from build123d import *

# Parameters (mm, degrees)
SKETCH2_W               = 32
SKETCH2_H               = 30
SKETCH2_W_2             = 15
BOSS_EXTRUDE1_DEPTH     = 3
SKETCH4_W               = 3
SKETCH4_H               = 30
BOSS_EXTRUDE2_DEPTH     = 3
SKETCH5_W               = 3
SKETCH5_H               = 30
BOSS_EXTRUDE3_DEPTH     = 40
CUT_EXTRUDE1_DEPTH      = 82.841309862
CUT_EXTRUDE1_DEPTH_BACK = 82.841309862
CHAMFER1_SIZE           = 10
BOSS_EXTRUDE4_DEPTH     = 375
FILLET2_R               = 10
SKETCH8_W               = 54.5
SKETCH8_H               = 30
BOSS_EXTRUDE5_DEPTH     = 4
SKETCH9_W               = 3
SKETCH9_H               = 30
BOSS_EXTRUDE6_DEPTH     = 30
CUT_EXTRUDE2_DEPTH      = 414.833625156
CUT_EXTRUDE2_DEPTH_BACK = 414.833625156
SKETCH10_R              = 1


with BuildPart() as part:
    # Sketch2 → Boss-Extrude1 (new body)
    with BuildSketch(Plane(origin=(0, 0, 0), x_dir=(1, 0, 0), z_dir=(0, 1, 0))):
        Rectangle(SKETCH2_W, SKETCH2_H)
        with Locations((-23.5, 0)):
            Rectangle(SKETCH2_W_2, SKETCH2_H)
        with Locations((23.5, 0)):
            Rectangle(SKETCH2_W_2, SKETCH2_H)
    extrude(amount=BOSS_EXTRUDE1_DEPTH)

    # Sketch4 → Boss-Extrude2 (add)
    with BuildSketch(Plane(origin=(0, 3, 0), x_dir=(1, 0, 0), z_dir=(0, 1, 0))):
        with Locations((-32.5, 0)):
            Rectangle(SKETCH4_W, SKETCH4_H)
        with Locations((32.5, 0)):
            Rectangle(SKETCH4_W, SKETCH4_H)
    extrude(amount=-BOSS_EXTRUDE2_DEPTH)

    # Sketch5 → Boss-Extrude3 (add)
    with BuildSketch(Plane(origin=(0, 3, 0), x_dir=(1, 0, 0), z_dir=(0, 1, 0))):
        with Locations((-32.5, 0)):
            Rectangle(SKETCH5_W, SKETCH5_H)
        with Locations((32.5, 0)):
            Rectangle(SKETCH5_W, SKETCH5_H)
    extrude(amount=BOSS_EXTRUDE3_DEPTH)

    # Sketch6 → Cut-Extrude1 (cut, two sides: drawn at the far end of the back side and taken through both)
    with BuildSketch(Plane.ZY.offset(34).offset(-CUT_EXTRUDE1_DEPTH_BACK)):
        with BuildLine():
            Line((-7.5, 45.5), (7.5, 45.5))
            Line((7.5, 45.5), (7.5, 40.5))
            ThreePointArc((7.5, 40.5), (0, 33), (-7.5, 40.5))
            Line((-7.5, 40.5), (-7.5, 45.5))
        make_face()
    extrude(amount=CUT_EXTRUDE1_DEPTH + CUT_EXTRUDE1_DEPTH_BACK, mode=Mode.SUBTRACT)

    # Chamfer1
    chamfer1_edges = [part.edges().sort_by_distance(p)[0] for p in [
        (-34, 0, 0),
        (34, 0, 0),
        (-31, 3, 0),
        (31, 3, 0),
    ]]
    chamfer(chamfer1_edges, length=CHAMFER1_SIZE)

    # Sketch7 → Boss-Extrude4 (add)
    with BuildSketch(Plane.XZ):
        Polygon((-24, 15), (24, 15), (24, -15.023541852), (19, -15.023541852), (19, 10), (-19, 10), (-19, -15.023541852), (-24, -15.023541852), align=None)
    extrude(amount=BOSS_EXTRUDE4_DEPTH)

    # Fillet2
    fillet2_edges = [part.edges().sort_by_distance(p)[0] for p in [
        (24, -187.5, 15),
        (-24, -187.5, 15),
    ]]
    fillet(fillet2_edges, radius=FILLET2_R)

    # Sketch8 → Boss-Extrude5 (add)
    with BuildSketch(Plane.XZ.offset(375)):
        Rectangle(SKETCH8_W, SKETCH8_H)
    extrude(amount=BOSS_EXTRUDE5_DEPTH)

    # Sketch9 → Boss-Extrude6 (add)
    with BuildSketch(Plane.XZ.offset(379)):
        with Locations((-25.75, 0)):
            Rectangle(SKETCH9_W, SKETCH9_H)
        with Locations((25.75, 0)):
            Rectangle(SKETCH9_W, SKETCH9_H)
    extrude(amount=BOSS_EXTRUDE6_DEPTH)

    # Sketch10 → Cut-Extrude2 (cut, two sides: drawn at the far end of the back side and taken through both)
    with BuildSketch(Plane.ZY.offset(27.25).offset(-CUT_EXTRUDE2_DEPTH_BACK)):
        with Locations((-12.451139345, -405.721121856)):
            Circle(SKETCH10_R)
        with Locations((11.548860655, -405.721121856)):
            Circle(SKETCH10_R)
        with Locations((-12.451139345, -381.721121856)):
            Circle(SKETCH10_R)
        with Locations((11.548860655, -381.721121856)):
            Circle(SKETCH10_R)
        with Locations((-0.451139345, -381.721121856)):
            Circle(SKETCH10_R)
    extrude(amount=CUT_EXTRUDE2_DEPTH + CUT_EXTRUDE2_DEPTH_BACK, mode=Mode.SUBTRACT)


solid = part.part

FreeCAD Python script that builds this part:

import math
import FreeCAD as App
import Part
import Sketcher
from FreeCAD import Vector


def edges_at(feature, points):
    """Names of the edges that pass closest to the given points."""
    edges = feature.Shape.Edges
    near = lambda p: min(range(len(edges)), key=lambda i: edges[i].distToShape(Part.Vertex(*p))[0])
    return sorted({f"Edge{near(p) + 1}" for p in points})

doc = App.newDocument("Part")
body = doc.addObject("PartDesign::Body", "Body")

# Sketch on XZ plane
sketch1 = body.newObject("Sketcher::SketchObject", "Sketch")
sketch1.AttachmentSupport = (doc.getObject("XZ_Plane"), [""])
sketch1.MapMode = "FlatFace"
sketch1.addGeometry([
    Part.LineSegment(Vector(-31, -15, 0), Vector(-31, 15, 0)),
    Part.LineSegment(Vector(-31, 15, 0), Vector(31, 15, 0)),
    Part.LineSegment(Vector(31, 15, 0), Vector(31, -15, 0)),
    Part.LineSegment(Vector(31, -15, 0), Vector(-31, -15, 0)),
], False)
sketch1.addConstraint([
    Sketcher.Constraint("Coincident", 0, 2, 1, 1),
    Sketcher.Constraint("Coincident", 1, 2, 2, 1),
    Sketcher.Constraint("Coincident", 2, 2, 3, 1),
    Sketcher.Constraint("Coincident", 3, 2, 0, 1),
    Sketcher.Constraint("Vertical", 0),
    Sketcher.Constraint("Horizontal", 1),
    Sketcher.Constraint("Vertical", 2),
    Sketcher.Constraint("Horizontal", 3),
    Sketcher.Constraint("Symmetric", 0, 2, 2, 2, -1, 1),
    Sketcher.Constraint("DistanceX", 1, 1, 1, 2, 62.0),
    Sketcher.Constraint("DistanceY", 0, 1, 0, 2, 30.0),
])
pad1 = body.newObject("PartDesign::Pad", "Pad")
pad1.Profile = sketch1
pad1.Length = 3
pad1.Reversed = True

# Sketch on XZ plane
sketch2 = body.newObject("Sketcher::SketchObject", "Sketch001")
sketch2.AttachmentSupport = (doc.getObject("XZ_Plane"), [""])
sketch2.MapMode = "FlatFace"
sketch2.AttachmentOffset = App.Placement(Vector(0, 0, -3), App.Rotation())
sketch2.addGeometry([
    Part.LineSegment(Vector(-34, -15, 0), Vector(-34, 15, 0)),  # 0
    Part.LineSegment(Vector(-34, 15, 0), Vector(-31, 15, 0)),  # 1
    Part.LineSegment(Vector(-31, 15, 0), Vector(-31, -15, 0)),  # 2
    Part.LineSegment(Vector(-31, -15, 0), Vector(-34, -15, 0)),  # 3
    Part.LineSegment(Vector(31, -15, 0), Vector(31, 15, 0)),  # 4
    Part.LineSegment(Vector(31, 15, 0), Vector(34, 15, 0)),  # 5
    Part.LineSegment(Vector(34, 15, 0), Vector(34, -15, 0)),  # 6
    Part.LineSegment(Vector(34, -15, 0), Vector(31, -15, 0)),  # 7
], False)
sketch2.addConstraint([
    Sketcher.Constraint("Coincident", 0, 2, 1, 1),
    Sketcher.Constraint("Coincident", 1, 2, 2, 1),
    Sketcher.Constraint("Coincident", 2, 2, 3, 1),
    Sketcher.Constraint("Coincident", 3, 2, 0, 1),
    Sketcher.Constraint("Coincident", 4, 2, 5, 1),
    Sketcher.Constraint("Coincident", 5, 2, 6, 1),
    Sketcher.Constraint("Coincident", 6, 2, 7, 1),
    Sketcher.Constraint("Coincident", 7, 2, 4, 1),
    Sketcher.Constraint("Vertical", 0),
    Sketcher.Constraint("Horizontal", 1),
    Sketcher.Constraint("Vertical", 2),
    Sketcher.Constraint("Horizontal", 3),
    Sketcher.Constraint("Vertical", 4),
    Sketcher.Constraint("Horizontal", 5),
    Sketcher.Constraint("Vertical", 6),
    Sketcher.Constraint("Horizontal", 7),
    Sketcher.Constraint("Symmetric", 2, 2, 4, 2, -1, 1),
    Sketcher.Constraint("Symmetric", 0, 2, 6, 2, -1, 1),
    Sketcher.Constraint("Horizontal", 1, 2, 4, 2),
    Sketcher.Constraint("DistanceX", 1, 1, 1, 2, 3.0),
    Sketcher.Constraint("DistanceY", 0, 1, 0, 2, 30.0),
    Sketcher.Constraint("DistanceX", 0, 2, -1, 1, 34.0),
])
pad2 = body.newObject("PartDesign::Pad", "Pad001")
pad2.Profile = sketch2
pad2.Length = 3

# Sketch on XZ plane
sketch3 = body.newObject("Sketcher::SketchObject", "Sketch002")
sketch3.AttachmentSupport = (doc.getObject("XZ_Plane"), [""])
sketch3.MapMode = "FlatFace"
sketch3.AttachmentOffset = App.Placement(Vector(0, 0, -3), App.Rotation())
sketch3.addGeometry([
    Part.LineSegment(Vector(-34, -15, 0), Vector(-34, 15, 0)),  # 0
    Part.LineSegment(Vector(-34, 15, 0), Vector(-31, 15, 0)),  # 1
    Part.LineSegment(Vector(-31, 15, 0), Vector(-31, -15, 0)),  # 2
    Part.LineSegment(Vector(-31, -15, 0), Vector(-34, -15, 0)),  # 3
    Part.LineSegment(Vector(31, -15, 0), Vector(31, 15, 0)),  # 4
    Part.LineSegment(Vector(31, 15, 0), Vector(34, 15, 0)),  # 5
    Part.LineSegment(Vector(34, 15, 0), Vector(34, -15, 0)),  # 6
    Part.LineSegment(Vector(34, -15, 0), Vector(31, -15, 0)),  # 7
], False)
sketch3.addConstraint([
    Sketcher.Constraint("Coincident", 0, 2, 1, 1),
    Sketcher.Constraint("Coincident", 1, 2, 2, 1),
    Sketcher.Constraint("Coincident", 2, 2, 3, 1),
    Sketcher.Constraint("Coincident", 3, 2, 0, 1),
    Sketcher.Constraint("Coincident", 4, 2, 5, 1),
    Sketcher.Constraint("Coincident", 5, 2, 6, 1),
    Sketcher.Constraint("Coincident", 6, 2, 7, 1),
    Sketcher.Constraint("Coincident", 7, 2, 4, 1),
    Sketcher.Constraint("Vertical", 0),
    Sketcher.Constraint("Horizontal", 1),
    Sketcher.Constraint("Vertical", 2),
    Sketcher.Constraint("Horizontal", 3),
    Sketcher.Constraint("Vertical", 4),
    Sketcher.Constraint("Horizontal", 5),
    Sketcher.Constraint("Vertical", 6),
    Sketcher.Constraint("Horizontal", 7),
    Sketcher.Constraint("Symmetric", 2, 2, 4, 2, -1, 1),
    Sketcher.Constraint("Symmetric", 0, 2, 6, 2, -1, 1),
    Sketcher.Constraint("Horizontal", 1, 2, 4, 2),
    Sketcher.Constraint("DistanceX", 1, 1, 1, 2, 3.0),
    Sketcher.Constraint("DistanceY", 0, 1, 0, 2, 30.0),
    Sketcher.Constraint("DistanceX", 0, 2, -1, 1, 34.0),
])
pad3 = body.newObject("PartDesign::Pad", "Pad002")
pad3.Profile = sketch3
pad3.Length = 40
pad3.Reversed = True

# Sketch on YZ plane
sketch4 = body.newObject("Sketcher::SketchObject", "Sketch003")
sketch4.AttachmentSupport = (doc.getObject("YZ_Plane"), [""])
sketch4.MapMode = "FlatFace"
sketch4.AttachmentOffset = App.Placement(Vector(0, 0, -34), App.Rotation())
sketch4.addGeometry([
    Part.LineSegment(Vector(45.5, 7.5, 0), Vector(45.5, -7.5, 0)),
    Part.LineSegment(Vector(45.5, -7.5, 0), Vector(40.5, -7.5, 0)),
    Part.ArcOfCircle(Part.Circle(Vector(40.5, 0, 0), Vector(0, 0, 1), 7.5), math.radians(90), math.radians(270)),
    Part.LineSegment(Vector(40.5, 7.5, 0), Vector(45.5, 7.5, 0)),
], False)
sketch4.addConstraint([
    Sketcher.Constraint("Coincident", 0, 2, 1, 1),
    Sketcher.Constraint("Tangent", 1, 2, 2, 2),
    Sketcher.Constraint("Tangent", 2, 1, 3, 1),
    Sketcher.Constraint("Coincident", 3, 2, 0, 1),
    Sketcher.Constraint("Vertical", 0),
    Sketcher.Constraint("Horizontal", 1),
    Sketcher.Constraint("Horizontal", 3),
    Sketcher.Constraint("PointOnObject", 2, 3, -1),
    Sketcher.Constraint("Radius", 2, 7.5),
    Sketcher.Constraint("DistanceX", 1, 2, 1, 1, 5.0),
    Sketcher.Constraint("DistanceX", -1, 1, 2, 3, 40.5),
])
pocket1 = body.newObject("PartDesign::Pocket", "Pocket")
pocket1.Profile = sketch4
pocket1.Type = "ThroughAll"
pocket1.Midplane = True
doc.recompute()

chamfer = body.newObject("PartDesign::Chamfer", "Chamfer")
chamfer.Base = (pocket1, edges_at(pocket1, [
    (-34, 0, 0),
    (34, 0, 0),
    (-31, 3, 0),
    (31, 3, 0),
]))
chamfer.Size = 10

# Sketch on XZ plane
sketch5 = body.newObject("Sketcher::SketchObject", "Sketch004")
sketch5.AttachmentSupport = (doc.getObject("XZ_Plane"), [""])
sketch5.MapMode = "FlatFace"
sketch5.addGeometry([
    Part.LineSegment(Vector(24, 15, 0), Vector(-24, 15, 0)),  # 0
    Part.LineSegment(Vector(-24, 15, 0), Vector(-24, -15.023542, 0)),  # 1
    Part.LineSegment(Vector(-24, -15.023542, 0), Vector(-19, -15.023542, 0)),  # 2
    Part.LineSegment(Vector(-19, -15.023542, 0), Vector(-19, 10, 0)),  # 3
    Part.LineSegment(Vector(-19, 10, 0), Vector(19, 10, 0)),  # 4
    Part.LineSegment(Vector(19, 10, 0), Vector(19, -15.023542, 0)),  # 5
    Part.LineSegment(Vector(19, -15.023542, 0), Vector(24, -15.023542, 0)),  # 6
    Part.LineSegment(Vector(24, -15.023542, 0), Vector(24, 15, 0)),  # 7
], False)
sketch5.addConstraint([
    Sketcher.Constraint("Coincident", 0, 2, 1, 1),
    Sketcher.Constraint("Coincident", 1, 2, 2, 1),
    Sketcher.Constraint("Coincident", 2, 2, 3, 1),
    Sketcher.Constraint("Coincident", 3, 2, 4, 1),
    Sketcher.Constraint("Coincident", 4, 2, 5, 1),
    Sketcher.Constraint("Coincident", 5, 2, 6, 1),
    Sketcher.Constraint("Coincident", 6, 2, 7, 1),
    Sketcher.Constraint("Coincident", 7, 2, 0, 1),
    Sketcher.Constraint("Horizontal", 0),
    Sketcher.Constraint("Vertical", 1),
    Sketcher.Constraint("Horizontal", 2),
    Sketcher.Constraint("Vertical", 3),
    Sketcher.Constraint("Horizontal", 4),
    Sketcher.Constraint("Vertical", 5),
    Sketcher.Constraint("Horizontal", 6),
    Sketcher.Constraint("Vertical", 7),
    Sketcher.Constraint("Symmetric", 2, 2, 5, 2, -2),
    Sketcher.Constraint("Equal", 2, 6),
    Sketcher.Constraint("DistanceX", 0, 2, 0, 1, 48.0),
    Sketcher.Constraint("DistanceX", 2, 1, 2, 2, 5.0),
    Sketcher.Constraint("DistanceY", -1, 1, 0, 2, 15.0),
    Sketcher.Constraint("DistanceY", -1, 1, 3, 2, 10.0),
    Sketcher.Constraint("DistanceY", 1, 2, 1, 1, 30.023542),
])
pad4 = body.newObject("PartDesign::Pad", "Pad003")
pad4.Profile = sketch5
pad4.Length = 375
doc.recompute()

fillet = body.newObject("PartDesign::Fillet", "Fillet")
fillet.Base = (pad4, edges_at(pad4, [(24, -187.5, 15), (-24, -187.5, 15)]))
fillet.Radius = 10

# Sketch on XZ plane
sketch6 = body.newObject("Sketcher::SketchObject", "Sketch005")
sketch6.AttachmentSupport = (doc.getObject("XZ_Plane"), [""])
sketch6.MapMode = "FlatFace"
sketch6.AttachmentOffset = App.Placement(Vector(0, 0, 375), App.Rotation())
sketch6.addGeometry([
    Part.LineSegment(Vector(-27.25, 15, 0), Vector(-27.25, -15, 0)),
    Part.LineSegment(Vector(-27.25, -15, 0), Vector(27.25, -15, 0)),
    Part.LineSegment(Vector(27.25, -15, 0), Vector(27.25, 15, 0)),
    Part.LineSegment(Vector(27.25, 15, 0), Vector(-27.25, 15, 0)),
], False)
sketch6.addConstraint([
    Sketcher.Constraint("Coincident", 0, 2, 1, 1),
    Sketcher.Constraint("Coincident", 1, 2, 2, 1),
    Sketcher.Constraint("Coincident", 2, 2, 3, 1),
    Sketcher.Constraint("Coincident", 3, 2, 0, 1),
    Sketcher.Constraint("Vertical", 0),
    Sketcher.Constraint("Horizontal", 1),
    Sketcher.Constraint("Vertical", 2),
    Sketcher.Constraint("Horizontal", 3),
    Sketcher.Constraint("Symmetric", 0, 2, 2, 2, -1, 1),
    Sketcher.Constraint("DistanceY", 0, 2, 0, 1, 30.0),
    Sketcher.Constraint("DistanceX", 1, 1, 1, 2, 54.5),
])
pad5 = body.newObject("PartDesign::Pad", "Pad004")
pad5.Profile = sketch6
pad5.Length = 4

# Sketch on XZ plane
sketch7 = body.newObject("Sketcher::SketchObject", "Sketch006")
sketch7.AttachmentSupport = (doc.getObject("XZ_Plane"), [""])
sketch7.MapMode = "FlatFace"
sketch7.AttachmentOffset = App.Placement(Vector(0, 0, 379), App.Rotation())
sketch7.addGeometry([
    Part.LineSegment(Vector(-27.25, 15, 0), Vector(-27.25, -15, 0)),  # 0
    Part.LineSegment(Vector(-27.25, -15, 0), Vector(-24.25, -15, 0)),  # 1
    Part.LineSegment(Vector(-24.25, -15, 0), Vector(-24.25, 15, 0)),  # 2
    Part.LineSegment(Vector(-24.25, 15, 0), Vector(-27.25, 15, 0)),  # 3
    Part.LineSegment(Vector(24.25, 15, 0), Vector(24.25, -15, 0)),  # 4
    Part.LineSegment(Vector(24.25, -15, 0), Vector(27.25, -15, 0)),  # 5
    Part.LineSegment(Vector(27.25, -15, 0), Vector(27.25, 15, 0)),  # 6
    Part.LineSegment(Vector(27.25, 15, 0), Vector(24.25, 15, 0)),  # 7
], False)
sketch7.addConstraint([
    Sketcher.Constraint("Coincident", 0, 2, 1, 1),
    Sketcher.Constraint("Coincident", 1, 2, 2, 1),
    Sketcher.Constraint("Coincident", 2, 2, 3, 1),
    Sketcher.Constraint("Coincident", 3, 2, 0, 1),
    Sketcher.Constraint("Coincident", 4, 2, 5, 1),
    Sketcher.Constraint("Coincident", 5, 2, 6, 1),
    Sketcher.Constraint("Coincident", 6, 2, 7, 1),
    Sketcher.Constraint("Coincident", 7, 2, 4, 1),
    Sketcher.Constraint("Vertical", 0),
    Sketcher.Constraint("Horizontal", 1),
    Sketcher.Constraint("Vertical", 2),
    Sketcher.Constraint("Horizontal", 3),
    Sketcher.Constraint("Vertical", 4),
    Sketcher.Constraint("Horizontal", 5),
    Sketcher.Constraint("Vertical", 6),
    Sketcher.Constraint("Horizontal", 7),
    Sketcher.Constraint("Symmetric", 2, 2, 4, 2, -1, 1),
    Sketcher.Constraint("Symmetric", 0, 2, 6, 2, -1, 1),
    Sketcher.Constraint("Horizontal", 1, 2, 4, 2),
    Sketcher.Constraint("DistanceX", 1, 1, 1, 2, 3.0),
    Sketcher.Constraint("DistanceY", 0, 2, 0, 1, 30.0),
    Sketcher.Constraint("DistanceX", 1, 2, 4, 2, 48.5),
])
pad6 = body.newObject("PartDesign::Pad", "Pad005")
pad6.Profile = sketch7
pad6.Length = 30

# Sketch on YZ plane
sketch8 = body.newObject("Sketcher::SketchObject", "Sketch007")
sketch8.AttachmentSupport = (doc.getObject("YZ_Plane"), [""])
sketch8.MapMode = "FlatFace"
sketch8.AttachmentOffset = App.Placement(Vector(0, 0, -27.25), App.Rotation())
sketch8.addGeometry([
    Part.Circle(Vector(-405.721122, -12.451139, 0), Vector(0, 0, 1), 1),  # 0
    Part.Circle(Vector(-405.721122, 11.548861, 0), Vector(0, 0, 1), 1),  # 1
    Part.Circle(Vector(-381.721122, -12.451139, 0), Vector(0, 0, 1), 1),  # 2
    Part.Circle(Vector(-381.721122, 11.548861, 0), Vector(0, 0, 1), 1),  # 3
    Part.Circle(Vector(-381.721122, -0.451139, 0), Vector(0, 0, 1), 1),  # 4
], False)
sketch8.addConstraint([
    Sketcher.Constraint("Equal", 0, 1),
    Sketcher.Constraint("Equal", 1, 2),
    Sketcher.Constraint("Equal", 2, 3),
    Sketcher.Constraint("Equal", 3, 4),
    Sketcher.Constraint("Horizontal", 0, 3, 2, 3),
    Sketcher.Constraint("Horizontal", 1, 3, 3, 3),
    Sketcher.Constraint("Vertical", 0, 3, 1, 3),
    Sketcher.Constraint("Vertical", 2, 3, 3, 3),
    Sketcher.Constraint("Vertical", 3, 3, 4, 3),
    Sketcher.Constraint("Diameter", 0, 2.0),
    Sketcher.Constraint("DistanceY", 0, 3, 1, 3, 24.0),
    Sketcher.Constraint("DistanceX", 0, 3, 2, 3, 24.0),
    Sketcher.Constraint("DistanceY", 2, 3, 4, 3, 12.0),
    Sketcher.Constraint("DistanceX", 0, 3, -1, 1, 405.721122),
    Sketcher.Constraint("DistanceY", 0, 3, -1, 1, 12.451139),
])
pocket2 = body.newObject("PartDesign::Pocket", "Pocket001")
pocket2.Profile = sketch8
pocket2.Type = "ThroughAll"
pocket2.Midplane = True

doc.recompute()
